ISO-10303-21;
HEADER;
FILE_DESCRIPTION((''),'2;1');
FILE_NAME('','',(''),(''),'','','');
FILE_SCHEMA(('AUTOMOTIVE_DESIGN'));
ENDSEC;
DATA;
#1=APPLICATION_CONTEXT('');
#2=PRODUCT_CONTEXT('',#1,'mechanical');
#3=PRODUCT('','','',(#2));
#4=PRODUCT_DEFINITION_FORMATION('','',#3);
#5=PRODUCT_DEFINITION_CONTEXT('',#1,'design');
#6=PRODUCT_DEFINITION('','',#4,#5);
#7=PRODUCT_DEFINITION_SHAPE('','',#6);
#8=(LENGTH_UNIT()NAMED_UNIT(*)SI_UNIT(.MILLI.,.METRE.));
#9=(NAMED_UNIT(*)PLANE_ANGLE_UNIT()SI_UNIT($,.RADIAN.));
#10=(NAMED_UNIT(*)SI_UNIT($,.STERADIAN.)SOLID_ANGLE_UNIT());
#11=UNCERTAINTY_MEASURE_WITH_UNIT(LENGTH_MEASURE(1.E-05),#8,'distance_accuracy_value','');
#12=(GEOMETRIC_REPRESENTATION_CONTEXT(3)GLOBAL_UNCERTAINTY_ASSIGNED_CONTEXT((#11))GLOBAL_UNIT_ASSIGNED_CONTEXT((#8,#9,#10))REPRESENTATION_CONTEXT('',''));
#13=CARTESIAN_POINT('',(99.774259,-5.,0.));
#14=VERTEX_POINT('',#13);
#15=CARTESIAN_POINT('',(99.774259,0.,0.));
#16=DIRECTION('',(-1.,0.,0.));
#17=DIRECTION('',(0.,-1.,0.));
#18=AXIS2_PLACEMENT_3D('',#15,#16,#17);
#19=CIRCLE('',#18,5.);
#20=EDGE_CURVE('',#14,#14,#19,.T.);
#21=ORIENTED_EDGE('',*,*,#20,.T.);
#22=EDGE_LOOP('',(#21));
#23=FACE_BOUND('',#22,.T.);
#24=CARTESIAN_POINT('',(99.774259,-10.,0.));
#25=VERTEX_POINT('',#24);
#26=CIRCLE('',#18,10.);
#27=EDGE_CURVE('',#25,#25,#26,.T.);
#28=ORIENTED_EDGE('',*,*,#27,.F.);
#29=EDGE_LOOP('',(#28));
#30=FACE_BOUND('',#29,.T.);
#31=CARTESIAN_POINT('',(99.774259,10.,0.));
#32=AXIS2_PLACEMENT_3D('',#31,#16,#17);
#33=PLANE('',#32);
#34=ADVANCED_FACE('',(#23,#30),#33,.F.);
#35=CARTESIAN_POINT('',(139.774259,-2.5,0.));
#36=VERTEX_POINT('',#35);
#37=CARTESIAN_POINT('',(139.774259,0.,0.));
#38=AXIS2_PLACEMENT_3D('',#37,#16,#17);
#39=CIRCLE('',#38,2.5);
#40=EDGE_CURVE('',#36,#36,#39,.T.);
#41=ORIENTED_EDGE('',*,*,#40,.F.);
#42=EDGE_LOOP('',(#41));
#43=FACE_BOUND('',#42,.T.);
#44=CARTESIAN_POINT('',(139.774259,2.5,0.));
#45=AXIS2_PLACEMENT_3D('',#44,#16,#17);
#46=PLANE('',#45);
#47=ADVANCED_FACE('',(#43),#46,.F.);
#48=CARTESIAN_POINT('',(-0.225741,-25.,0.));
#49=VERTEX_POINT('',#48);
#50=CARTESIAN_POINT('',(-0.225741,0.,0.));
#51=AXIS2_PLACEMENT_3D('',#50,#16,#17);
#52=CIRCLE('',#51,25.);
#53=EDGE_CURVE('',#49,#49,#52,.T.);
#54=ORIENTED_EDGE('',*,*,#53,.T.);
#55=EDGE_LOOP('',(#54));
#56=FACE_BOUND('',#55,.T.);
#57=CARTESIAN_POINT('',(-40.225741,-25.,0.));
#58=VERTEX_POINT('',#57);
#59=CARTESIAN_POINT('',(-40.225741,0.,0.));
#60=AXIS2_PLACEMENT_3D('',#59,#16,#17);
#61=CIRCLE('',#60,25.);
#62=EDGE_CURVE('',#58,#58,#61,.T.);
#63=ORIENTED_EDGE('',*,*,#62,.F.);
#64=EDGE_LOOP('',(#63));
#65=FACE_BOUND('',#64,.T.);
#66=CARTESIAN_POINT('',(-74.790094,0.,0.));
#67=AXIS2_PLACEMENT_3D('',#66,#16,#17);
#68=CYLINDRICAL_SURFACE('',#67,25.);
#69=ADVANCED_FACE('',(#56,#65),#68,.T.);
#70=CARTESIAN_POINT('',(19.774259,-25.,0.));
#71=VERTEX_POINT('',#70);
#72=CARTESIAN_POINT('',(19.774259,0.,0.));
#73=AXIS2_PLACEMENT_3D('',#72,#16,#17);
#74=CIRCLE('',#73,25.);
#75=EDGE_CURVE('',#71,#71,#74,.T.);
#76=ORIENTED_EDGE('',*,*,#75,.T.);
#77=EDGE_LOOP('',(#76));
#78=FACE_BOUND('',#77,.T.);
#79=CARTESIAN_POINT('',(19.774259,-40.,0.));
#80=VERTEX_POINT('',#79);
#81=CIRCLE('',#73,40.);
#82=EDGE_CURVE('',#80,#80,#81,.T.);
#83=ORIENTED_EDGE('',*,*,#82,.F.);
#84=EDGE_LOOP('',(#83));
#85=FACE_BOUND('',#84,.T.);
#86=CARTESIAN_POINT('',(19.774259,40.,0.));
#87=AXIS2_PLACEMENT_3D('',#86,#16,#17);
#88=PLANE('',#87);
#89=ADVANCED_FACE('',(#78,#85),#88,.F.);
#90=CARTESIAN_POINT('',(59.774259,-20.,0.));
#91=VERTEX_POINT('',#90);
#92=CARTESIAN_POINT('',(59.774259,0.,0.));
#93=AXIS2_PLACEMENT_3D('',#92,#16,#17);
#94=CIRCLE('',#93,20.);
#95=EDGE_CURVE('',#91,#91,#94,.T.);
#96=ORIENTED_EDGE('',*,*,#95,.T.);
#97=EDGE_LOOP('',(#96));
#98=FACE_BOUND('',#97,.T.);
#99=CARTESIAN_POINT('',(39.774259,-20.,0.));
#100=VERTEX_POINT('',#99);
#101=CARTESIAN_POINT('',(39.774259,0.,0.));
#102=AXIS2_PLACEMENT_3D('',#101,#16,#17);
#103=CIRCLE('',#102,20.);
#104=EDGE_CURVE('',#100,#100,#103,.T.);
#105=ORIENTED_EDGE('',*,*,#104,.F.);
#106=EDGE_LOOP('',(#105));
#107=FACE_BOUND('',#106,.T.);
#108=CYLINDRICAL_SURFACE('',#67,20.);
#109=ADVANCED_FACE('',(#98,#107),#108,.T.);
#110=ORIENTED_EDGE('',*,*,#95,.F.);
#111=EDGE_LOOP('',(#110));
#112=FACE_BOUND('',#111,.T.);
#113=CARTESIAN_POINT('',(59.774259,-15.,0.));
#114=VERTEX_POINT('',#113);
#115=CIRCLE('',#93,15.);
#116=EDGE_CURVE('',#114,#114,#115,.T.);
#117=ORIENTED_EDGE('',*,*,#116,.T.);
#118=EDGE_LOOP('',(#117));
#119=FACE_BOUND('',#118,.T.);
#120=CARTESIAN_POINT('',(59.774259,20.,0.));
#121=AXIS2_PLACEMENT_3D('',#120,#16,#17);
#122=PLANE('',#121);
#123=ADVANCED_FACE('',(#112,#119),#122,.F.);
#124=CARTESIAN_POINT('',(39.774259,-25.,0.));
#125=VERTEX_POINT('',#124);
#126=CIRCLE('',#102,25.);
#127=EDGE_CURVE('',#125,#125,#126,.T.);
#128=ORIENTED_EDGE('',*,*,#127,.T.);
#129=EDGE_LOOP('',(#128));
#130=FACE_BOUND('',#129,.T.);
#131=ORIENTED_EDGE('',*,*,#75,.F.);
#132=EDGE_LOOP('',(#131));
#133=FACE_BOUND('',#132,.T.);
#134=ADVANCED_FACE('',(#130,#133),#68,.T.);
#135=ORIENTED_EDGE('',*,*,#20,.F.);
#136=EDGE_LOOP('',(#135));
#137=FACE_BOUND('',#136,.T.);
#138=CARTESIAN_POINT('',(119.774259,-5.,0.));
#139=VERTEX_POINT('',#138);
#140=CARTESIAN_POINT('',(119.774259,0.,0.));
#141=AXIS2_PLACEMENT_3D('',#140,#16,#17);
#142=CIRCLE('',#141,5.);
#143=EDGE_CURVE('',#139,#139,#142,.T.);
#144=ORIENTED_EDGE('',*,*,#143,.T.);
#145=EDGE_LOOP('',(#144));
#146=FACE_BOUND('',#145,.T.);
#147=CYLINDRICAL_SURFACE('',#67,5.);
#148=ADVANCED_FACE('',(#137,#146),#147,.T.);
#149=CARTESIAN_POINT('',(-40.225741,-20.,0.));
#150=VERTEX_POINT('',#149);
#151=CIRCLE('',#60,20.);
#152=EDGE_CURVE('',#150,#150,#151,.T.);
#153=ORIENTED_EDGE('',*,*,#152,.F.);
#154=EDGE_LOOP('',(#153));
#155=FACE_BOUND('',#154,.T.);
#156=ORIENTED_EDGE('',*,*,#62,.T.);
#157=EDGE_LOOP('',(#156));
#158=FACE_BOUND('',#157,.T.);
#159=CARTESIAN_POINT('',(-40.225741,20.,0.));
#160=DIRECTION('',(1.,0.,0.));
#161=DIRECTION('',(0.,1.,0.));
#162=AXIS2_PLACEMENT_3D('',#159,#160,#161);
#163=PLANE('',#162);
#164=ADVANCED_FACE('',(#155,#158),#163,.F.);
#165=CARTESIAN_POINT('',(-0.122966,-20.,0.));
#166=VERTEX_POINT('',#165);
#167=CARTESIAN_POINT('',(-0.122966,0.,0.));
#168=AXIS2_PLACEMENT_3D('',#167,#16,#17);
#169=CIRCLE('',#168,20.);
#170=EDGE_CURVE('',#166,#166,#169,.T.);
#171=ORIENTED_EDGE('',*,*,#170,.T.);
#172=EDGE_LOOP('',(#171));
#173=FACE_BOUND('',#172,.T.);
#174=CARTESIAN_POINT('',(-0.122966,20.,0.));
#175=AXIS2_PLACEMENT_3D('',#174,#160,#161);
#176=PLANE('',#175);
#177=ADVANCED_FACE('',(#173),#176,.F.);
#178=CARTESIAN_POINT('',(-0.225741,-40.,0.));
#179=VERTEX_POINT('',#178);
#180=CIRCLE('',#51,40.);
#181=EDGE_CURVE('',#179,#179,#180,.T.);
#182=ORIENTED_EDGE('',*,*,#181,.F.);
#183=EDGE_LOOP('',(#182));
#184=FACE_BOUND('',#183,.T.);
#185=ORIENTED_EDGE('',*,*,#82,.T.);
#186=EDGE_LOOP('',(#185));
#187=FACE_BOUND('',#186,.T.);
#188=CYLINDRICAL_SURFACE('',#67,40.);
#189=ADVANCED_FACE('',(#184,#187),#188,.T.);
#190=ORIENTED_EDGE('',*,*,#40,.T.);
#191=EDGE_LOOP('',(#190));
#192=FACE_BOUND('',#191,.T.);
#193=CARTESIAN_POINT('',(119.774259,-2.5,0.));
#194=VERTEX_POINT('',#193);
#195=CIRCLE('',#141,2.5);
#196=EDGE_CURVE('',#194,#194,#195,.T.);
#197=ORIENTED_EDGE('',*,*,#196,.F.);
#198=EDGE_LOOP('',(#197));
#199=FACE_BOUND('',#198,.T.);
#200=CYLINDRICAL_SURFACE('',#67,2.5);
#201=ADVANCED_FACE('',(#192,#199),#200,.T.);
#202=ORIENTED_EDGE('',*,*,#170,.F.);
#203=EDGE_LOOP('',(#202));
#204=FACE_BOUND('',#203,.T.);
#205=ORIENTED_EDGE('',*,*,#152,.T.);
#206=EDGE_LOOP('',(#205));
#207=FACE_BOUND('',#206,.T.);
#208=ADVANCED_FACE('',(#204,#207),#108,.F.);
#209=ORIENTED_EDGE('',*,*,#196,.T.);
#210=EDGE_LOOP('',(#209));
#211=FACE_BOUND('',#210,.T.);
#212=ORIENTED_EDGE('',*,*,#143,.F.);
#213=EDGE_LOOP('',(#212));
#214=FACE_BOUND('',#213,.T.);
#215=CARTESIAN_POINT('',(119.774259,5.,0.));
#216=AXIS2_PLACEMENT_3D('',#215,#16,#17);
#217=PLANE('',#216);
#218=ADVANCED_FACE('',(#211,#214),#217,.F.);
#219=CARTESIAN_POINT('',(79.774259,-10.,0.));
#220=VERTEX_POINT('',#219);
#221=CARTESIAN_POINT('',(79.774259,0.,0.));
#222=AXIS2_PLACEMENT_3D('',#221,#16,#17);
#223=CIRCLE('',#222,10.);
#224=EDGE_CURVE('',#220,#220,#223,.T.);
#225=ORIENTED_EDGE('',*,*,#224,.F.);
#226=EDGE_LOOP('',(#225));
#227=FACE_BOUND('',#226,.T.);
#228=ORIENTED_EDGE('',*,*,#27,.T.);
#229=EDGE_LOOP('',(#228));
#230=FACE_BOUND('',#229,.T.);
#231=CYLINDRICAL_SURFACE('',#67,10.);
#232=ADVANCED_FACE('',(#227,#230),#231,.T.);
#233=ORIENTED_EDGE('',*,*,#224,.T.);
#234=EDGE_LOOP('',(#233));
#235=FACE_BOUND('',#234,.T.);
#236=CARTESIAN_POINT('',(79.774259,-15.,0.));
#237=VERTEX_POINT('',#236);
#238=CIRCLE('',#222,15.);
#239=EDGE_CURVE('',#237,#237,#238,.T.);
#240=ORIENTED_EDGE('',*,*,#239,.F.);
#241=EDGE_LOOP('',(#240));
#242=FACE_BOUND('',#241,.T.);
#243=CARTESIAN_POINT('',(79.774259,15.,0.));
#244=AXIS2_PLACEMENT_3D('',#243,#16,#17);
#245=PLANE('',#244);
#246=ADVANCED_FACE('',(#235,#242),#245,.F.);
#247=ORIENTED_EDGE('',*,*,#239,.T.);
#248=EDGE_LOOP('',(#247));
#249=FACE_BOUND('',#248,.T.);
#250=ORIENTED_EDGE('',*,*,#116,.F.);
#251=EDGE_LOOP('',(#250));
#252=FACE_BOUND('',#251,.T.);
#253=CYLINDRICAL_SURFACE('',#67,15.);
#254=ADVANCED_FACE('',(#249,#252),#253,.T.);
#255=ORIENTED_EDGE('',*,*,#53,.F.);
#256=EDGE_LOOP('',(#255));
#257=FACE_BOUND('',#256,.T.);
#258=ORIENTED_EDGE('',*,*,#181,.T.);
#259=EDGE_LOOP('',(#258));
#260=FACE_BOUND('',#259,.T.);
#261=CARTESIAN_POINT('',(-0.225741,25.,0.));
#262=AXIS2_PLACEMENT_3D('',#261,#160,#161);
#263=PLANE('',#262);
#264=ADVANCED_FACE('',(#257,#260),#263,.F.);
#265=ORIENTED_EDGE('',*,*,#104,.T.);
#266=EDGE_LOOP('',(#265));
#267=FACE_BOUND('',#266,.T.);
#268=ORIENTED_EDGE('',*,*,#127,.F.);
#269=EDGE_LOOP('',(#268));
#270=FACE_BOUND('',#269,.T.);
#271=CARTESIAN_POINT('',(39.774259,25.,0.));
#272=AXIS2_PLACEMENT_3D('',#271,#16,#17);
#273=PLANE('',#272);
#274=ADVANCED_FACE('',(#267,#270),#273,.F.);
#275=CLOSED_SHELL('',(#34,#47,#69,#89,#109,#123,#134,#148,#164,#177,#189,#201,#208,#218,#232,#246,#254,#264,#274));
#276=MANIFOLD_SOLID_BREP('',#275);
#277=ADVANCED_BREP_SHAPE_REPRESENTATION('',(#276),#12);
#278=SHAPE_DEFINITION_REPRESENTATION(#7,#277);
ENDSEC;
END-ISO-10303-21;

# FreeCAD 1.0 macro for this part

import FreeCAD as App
import Part
import Sketcher
Q = App.Units.Quantity

doc = App.newDocument("Part")
params = doc.addObject("Spreadsheet::Sheet", "Params")
for row, (alias, value) in enumerate([
    ("sketch1_width", "20 mm"),
    ("sketch1_width2", "40 mm"),
    ("sketch1_height", "5 mm"),
    ("sketch1_height2", "15 mm"),
    ("revolution_angle", "360 deg"),
], start=1):
    params.set(f"A{row}", alias)
    params.set(f"B{row}", "=" + value)
    params.setAlias(f"B{row}", alias)

body = doc.addObject("PartDesign::Body", "Body")

# Sketch on XY plane
sketch1 = body.newObject("Sketcher::SketchObject", "Sketch")
sketch1.AttachmentSupport = (doc.getObject("XY_Plane"), [""])
sketch1.MapMode = "FlatFace"
sketch1.addGeometry(Part.LineSegment(App.Vector(-40.2, 25, 0), App.Vector(-40.2, 20, 0)), False)
sketch1.addGeometry(Part.LineSegment(App.Vector(-40.2, 20, 0), App.Vector(-0.1, 20, 0)), False)
sketch1.addGeometry(Part.LineSegment(App.Vector(-0.1, 20, 0), App.Vector(-0.1, 0, 0)), False)
sketch1.addGeometry(Part.LineSegment(App.Vector(-0.1, 0, 0), App.Vector(139.8, 0, 0)), False)
sketch1.addGeometry(Part.LineSegment(App.Vector(139.8, 0, 0), App.Vector(139.8, 2.5, 0)), False)
sketch1.addGeometry(Part.LineSegment(App.Vector(139.8, 2.5, 0), App.Vector(119.8, 2.5, 0)), False)
sketch1.addGeometry(Part.LineSegment(App.Vector(119.8, 2.5, 0), App.Vector(119.8, 5, 0)), False)
sketch1.addGeometry(Part.LineSegment(App.Vector(119.8, 5, 0), App.Vector(99.8, 5, 0)), False)
sketch1.addGeometry(Part.LineSegment(App.Vector(99.8, 5, 0), App.Vector(99.8, 10, 0)), False)
sketch1.addGeometry(Part.LineSegment(App.Vector(99.8, 10, 0), App.Vector(79.8, 10, 0)), False)
sketch1.addGeometry(Part.LineSegment(App.Vector(79.8, 10, 0), App.Vector(79.8, 15, 0)), False)
sketch1.addGeometry(Part.LineSegment(App.Vector(79.8, 15, 0), App.Vector(59.8, 15, 0)), False)
sketch1.addGeometry(Part.LineSegment(App.Vector(59.8, 15, 0), App.Vector(59.8, 20, 0)), False)
sketch1.addGeometry(Part.LineSegment(App.Vector(59.8, 20, 0), App.Vector(39.8, 20, 0)), False)
sketch1.addGeometry(Part.LineSegment(App.Vector(39.8, 20, 0), App.Vector(39.8, 25, 0)), False)
sketch1.addGeometry(Part.LineSegment(App.Vector(39.8, 25, 0), App.Vector(19.8, 25, 0)), False)
sketch1.addGeometry(Part.LineSegment(App.Vector(19.8, 25, 0), App.Vector(19.8, 40, 0)), False)
sketch1.addGeometry(Part.LineSegment(App.Vector(19.8, 40, 0), App.Vector(-0.2, 40, 0)), False)
sketch1.addGeometry(Part.LineSegment(App.Vector(-0.2, 40, 0), App.Vector(-0.2, 25, 0)), False)
sketch1.addGeometry(Part.LineSegment(App.Vector(-0.2, 25, 0), App.Vector(-40.2, 25, 0)), False)
sketch1.addConstraint(Sketcher.Constraint("Coincident", 0, 2, 1, 1))
sketch1.addConstraint(Sketcher.Constraint("Coincident", 1, 2, 2, 1))
sketch1.addConstraint(Sketcher.Constraint("Coincident", 2, 2, 3, 1))
sketch1.addConstraint(Sketcher.Constraint("Coincident", 3, 2, 4, 1))
sketch1.addConstraint(Sketcher.Constraint("Coincident", 4, 2, 5, 1))
sketch1.addConstraint(Sketcher.Constraint("Coincident", 5, 2, 6, 1))
sketch1.addConstraint(Sketcher.Constraint("Coincident", 6, 2, 7, 1))
sketch1.addConstraint(Sketcher.Constraint("Coincident", 7, 2, 8, 1))
sketch1.addConstraint(Sketcher.Constraint("Coincident", 8, 2, 9, 1))
sketch1.addConstraint(Sketcher.Constraint("Coincident", 9, 2, 10, 1))
sketch1.addConstraint(Sketcher.Constraint("Coincident", 10, 2, 11, 1))
sketch1.addConstraint(Sketcher.Constraint("Coincident", 11, 2, 12, 1))
sketch1.addConstraint(Sketcher.Constraint("Coincident", 12, 2, 13, 1))
sketch1.addConstraint(Sketcher.Constraint("Coincident", 13, 2, 14, 1))
sketch1.addConstraint(Sketcher.Constraint("Coincident", 14, 2, 15, 1))
sketch1.addConstraint(Sketcher.Constraint("Coincident", 15, 2, 16, 1))
sketch1.addConstraint(Sketcher.Constraint("Coincident", 16, 2, 17, 1))
sketch1.addConstraint(Sketcher.Constraint("Coincident", 17, 2, 18, 1))
sketch1.addConstraint(Sketcher.Constraint("Coincident", 18, 2, 19, 1))
sketch1.addConstraint(Sketcher.Constraint("Coincident", 19, 2, 0, 1))
sketch1.addConstraint(Sketcher.Constraint("Vertical", 0))
sketch1.addConstraint(Sketcher.Constraint("Horizontal", 1))
sketch1.addConstraint(Sketcher.Constraint("Vertical", 2))
sketch1.addConstraint(Sketcher.Constraint("Horizontal", 3))
sketch1.addConstraint(Sketcher.Constraint("Vertical", 4))
sketch1.addConstraint(Sketcher.Constraint("Horizontal", 5))
sketch1.addConstraint(Sketcher.Constraint("Vertical", 6))
sketch1.addConstraint(Sketcher.Constraint("Horizontal", 7))
sketch1.addConstraint(Sketcher.Constraint("Vertical", 8))
sketch1.addConstraint(Sketcher.Constraint("Horizontal", 9))
sketch1.addConstraint(Sketcher.Constraint("Vertical", 10))
sketch1.addConstraint(Sketcher.Constraint("Horizontal", 11))
sketch1.addConstraint(Sketcher.Constraint("Vertical", 12))
sketch1.addConstraint(Sketcher.Constraint("Horizontal", 13))
sketch1.addConstraint(Sketcher.Constraint("Vertical", 14))
sketch1.addConstraint(Sketcher.Constraint("Horizontal", 15))
sketch1.addConstraint(Sketcher.Constraint("Vertical", 16))
sketch1.addConstraint(Sketcher.Constraint("Horizontal", 17))
sketch1.addConstraint(Sketcher.Constraint("Vertical", 18))
sketch1.addConstraint(Sketcher.Constraint("Horizontal", 19))
sketch1.addConstraint(Sketcher.Constraint("PointOnObject", 2, 2, -1))
sketch1.addConstraint(Sketcher.Constraint("Horizontal", 1, 2, 12, 2))
sketch1.addConstraint(Sketcher.Constraint("Horizontal", 15, 2, 18, 2))
sketch1.addConstraint(Sketcher.Constraint("Equal", 5, 7))
sketch1.addConstraint(Sketcher.Constraint("Equal", 7, 9))
sketch1.addConstraint(Sketcher.Constraint("Equal", 9, 11))
sketch1.addConstraint(Sketcher.Constraint("Equal", 11, 13))
sketch1.addConstraint(Sketcher.Constraint("Equal", 13, 15))
sketch1.addConstraint(Sketcher.Constraint("Equal", 15, 17))
sketch1.addConstraint(Sketcher.Constraint("Equal", 17, 2))
sketch1.addConstraint(Sketcher.Constraint("Equal", 4, 6))
sketch1.addConstraint(Sketcher.Constraint("Equal", 0, 8))
sketch1.addConstraint(Sketcher.Constraint("Equal", 8, 10))
sketch1.addConstraint(Sketcher.Constraint("Equal", 10, 12))
sketch1.addConstraint(Sketcher.Constraint("DistanceX", 5, 2, 5, 1, Q("20 mm")))
sketch1.addConstraint(Sketcher.Constraint("DistanceX", 19, 2, 19, 1, Q("40 mm")))
sketch1.addConstraint(Sketcher.Constraint("DistanceY", 0, 2, 0, 1, Q("5 mm")))
sketch1.addConstraint(Sketcher.Constraint("DistanceY", 16, 1, 16, 2, Q("15 mm")))
sketch1.addConstraint(Sketcher.Constraint("DistanceX", 1, 1, 1, 2, Q("40.102775 mm")))
sketch1.addConstraint(Sketcher.Constraint("DistanceX", 0, 2, -1, 1, Q("40.225741 mm")))
sketch1.setExpression("Constraints[54]", "Params.sketch1_width")
sketch1.setExpression("Constraints[55]", "Params.sketch1_width2")
sketch1.setExpression("Constraints[56]", "Params.sketch1_height")
sketch1.setExpression("Constraints[57]", "Params.sketch1_height2")
revolution = body.newObject("PartDesign::Revolution", "Revolution")
revolution.Profile = sketch1
revolution.ReferenceAxis = (sketch1, ["H_Axis"])
revolution.setExpression("Angle", "Params.revolution_angle")

doc.recompute()
